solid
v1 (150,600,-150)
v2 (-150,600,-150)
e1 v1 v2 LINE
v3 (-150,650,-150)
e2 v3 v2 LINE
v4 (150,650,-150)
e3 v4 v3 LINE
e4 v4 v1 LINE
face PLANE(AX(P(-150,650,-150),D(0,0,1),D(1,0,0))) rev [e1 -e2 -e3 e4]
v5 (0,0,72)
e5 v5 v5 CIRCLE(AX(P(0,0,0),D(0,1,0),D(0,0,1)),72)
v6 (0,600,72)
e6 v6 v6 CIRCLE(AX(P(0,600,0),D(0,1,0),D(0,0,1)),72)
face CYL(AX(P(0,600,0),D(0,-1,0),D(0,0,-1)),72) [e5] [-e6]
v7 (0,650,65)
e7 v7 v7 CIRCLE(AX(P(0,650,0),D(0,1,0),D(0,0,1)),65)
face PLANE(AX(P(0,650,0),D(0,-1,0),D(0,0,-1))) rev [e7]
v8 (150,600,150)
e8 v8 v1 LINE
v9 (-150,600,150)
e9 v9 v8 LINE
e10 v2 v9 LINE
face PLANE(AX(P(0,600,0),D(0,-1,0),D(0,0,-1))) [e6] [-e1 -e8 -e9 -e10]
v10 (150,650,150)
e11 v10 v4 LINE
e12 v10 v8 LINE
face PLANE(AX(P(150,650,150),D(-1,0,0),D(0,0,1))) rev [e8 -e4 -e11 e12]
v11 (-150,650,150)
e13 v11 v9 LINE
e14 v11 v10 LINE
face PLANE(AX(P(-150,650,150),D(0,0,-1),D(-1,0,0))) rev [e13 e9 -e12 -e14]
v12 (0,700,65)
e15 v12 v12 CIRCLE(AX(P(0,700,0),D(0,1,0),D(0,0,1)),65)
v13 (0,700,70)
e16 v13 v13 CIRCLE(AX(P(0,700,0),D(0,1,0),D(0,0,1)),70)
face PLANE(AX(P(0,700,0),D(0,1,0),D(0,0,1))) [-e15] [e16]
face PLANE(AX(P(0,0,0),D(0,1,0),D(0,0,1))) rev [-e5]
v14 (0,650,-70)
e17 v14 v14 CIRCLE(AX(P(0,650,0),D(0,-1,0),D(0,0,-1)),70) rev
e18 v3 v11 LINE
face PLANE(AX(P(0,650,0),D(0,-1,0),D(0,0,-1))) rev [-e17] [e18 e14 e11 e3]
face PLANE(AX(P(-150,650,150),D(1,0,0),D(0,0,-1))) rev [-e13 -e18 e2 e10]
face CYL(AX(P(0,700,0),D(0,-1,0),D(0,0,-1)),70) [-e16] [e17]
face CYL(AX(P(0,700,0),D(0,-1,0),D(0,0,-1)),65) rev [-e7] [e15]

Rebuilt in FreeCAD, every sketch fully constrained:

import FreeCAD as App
import Part
import Sketcher

V = App.Vector


def add_polygon(sketch, points):
    """Adds a closed chain of lines whose ends are joined by coincident constraints."""
    first, n = sketch.GeometryCount, len(points)
    for a, b in zip(points, points[1:] + points[:1]):
        sketch.addGeometry(Part.LineSegment(App.Vector(*a, 0), App.Vector(*b, 0)), False)
    for i in range(n):
        sketch.addConstraint(Sketcher.Constraint("Coincident", first + i, 2, first + (i + 1) % n, 1))

doc = App.newDocument("Part")
params = doc.addObject("Spreadsheet::Sheet", "Params")
for row, (alias, value) in enumerate([
    ("sketch1_diameter", "144 mm"),
    ("pad1_length", "600 mm"),
    ("sketch2_width", "300 mm"),
    ("pad2_length", "50 mm"),
    ("sketch3_diameter", "140 mm"),
    ("sketch3_diameter2", "130 mm"),
    ("pad3_length", "50 mm"),
], start=1):
    params.set(f"A{row}", alias)
    params.set(f"B{row}", "=" + value)
    params.setAlias(f"B{row}", alias)

body = doc.addObject("PartDesign::Body", "Body")

sketch1 = doc.addObject("Sketcher::SketchObject", "Sketch")
body.addObject(sketch1)
sketch1.AttachmentSupport = (doc.XZ_Plane, [""])
sketch1.MapMode = "FlatFace"
sketch1.addGeometry(Part.Circle(V(0, 0, 0), V(0, 0, 1), 72), False)
sketch1.addConstraint(Sketcher.Constraint("Coincident", 0, 3, -1, 1))
sketch1.addConstraint(Sketcher.Constraint("Diameter", 0, 144.0))
sketch1.setExpression("Constraints[1]", "Params.sketch1_diameter")
pad1 = doc.addObject("PartDesign::Pad", "Pad")
body.addObject(pad1)
pad1.Profile = sketch1
pad1.setExpression("Length", "Params.pad1_length")
pad1.Reversed = True

sketch2 = doc.addObject("Sketcher::SketchObject", "Sketch001")
body.addObject(sketch2)
sketch2.AttachmentSupport = (doc.XZ_Plane, [""])
sketch2.MapMode = "FlatFace"
sketch2.AttachmentOffset = App.Placement(V(0, 0, -600), App.Rotation())
add_polygon(sketch2, [(-150, -150), (-150, 150), (150, 150), (150, -150)])
sketch2.addConstraint(Sketcher.Constraint("Vertical", 0))
sketch2.addConstraint(Sketcher.Constraint("Horizontal", 1))
sketch2.addConstraint(Sketcher.Constraint("Vertical", 2))
sketch2.addConstraint(Sketcher.Constraint("Horizontal", 3))
sketch2.addConstraint(Sketcher.Constraint("Symmetric", 0, 2, 2, 2, -1, 1))
sketch2.addConstraint(Sketcher.Constraint("Equal", 3, 0))
sketch2.addConstraint(Sketcher.Constraint("DistanceX", 1, 1, 1, 2, 300.0))
sketch2.setExpression("Constraints[10]", "Params.sketch2_width")
pad2 = doc.addObject("PartDesign::Pad", "Pad001")
body.addObject(pad2)
pad2.Profile = sketch2
pad2.setExpression("Length", "Params.pad2_length")
pad2.Reversed = True

sketch3 = doc.addObject("Sketcher::SketchObject", "Sketch002")
body.addObject(sketch3)
sketch3.AttachmentSupport = (doc.XZ_Plane, [""])
sketch3.MapMode = "FlatFace"
sketch3.AttachmentOffset = App.Placement(V(0, 0, -650), App.Rotation())
sketch3.addGeometry(Part.Circle(V(0, 0, 0), V(0, 0, 1), 70), False)
sketch3.addGeometry(Part.Circle(V(0, 0, 0), V(0, 0, 1), 65), False)
sketch3.addConstraint(Sketcher.Constraint("Coincident", 0, 3, -1, 1))
sketch3.addConstraint(Sketcher.Constraint("Coincident", 1, 3, -1, 1))
sketch3.addConstraint(Sketcher.Constraint("Diameter", 0, 140.0))
sketch3.addConstraint(Sketcher.Constraint("Diameter", 1, 130.0))
sketch3.setExpression("Constraints[2]", "Params.sketch3_diameter")
sketch3.setExpression("Constraints[3]", "Params.sketch3_diameter2")
pad3 = doc.addObject("PartDesign::Pad", "Pad002")
body.addObject(pad3)
pad3.Profile = sketch3
pad3.setExpression("Length", "Params.pad3_length")
pad3.Reversed = True

doc.recompute()
